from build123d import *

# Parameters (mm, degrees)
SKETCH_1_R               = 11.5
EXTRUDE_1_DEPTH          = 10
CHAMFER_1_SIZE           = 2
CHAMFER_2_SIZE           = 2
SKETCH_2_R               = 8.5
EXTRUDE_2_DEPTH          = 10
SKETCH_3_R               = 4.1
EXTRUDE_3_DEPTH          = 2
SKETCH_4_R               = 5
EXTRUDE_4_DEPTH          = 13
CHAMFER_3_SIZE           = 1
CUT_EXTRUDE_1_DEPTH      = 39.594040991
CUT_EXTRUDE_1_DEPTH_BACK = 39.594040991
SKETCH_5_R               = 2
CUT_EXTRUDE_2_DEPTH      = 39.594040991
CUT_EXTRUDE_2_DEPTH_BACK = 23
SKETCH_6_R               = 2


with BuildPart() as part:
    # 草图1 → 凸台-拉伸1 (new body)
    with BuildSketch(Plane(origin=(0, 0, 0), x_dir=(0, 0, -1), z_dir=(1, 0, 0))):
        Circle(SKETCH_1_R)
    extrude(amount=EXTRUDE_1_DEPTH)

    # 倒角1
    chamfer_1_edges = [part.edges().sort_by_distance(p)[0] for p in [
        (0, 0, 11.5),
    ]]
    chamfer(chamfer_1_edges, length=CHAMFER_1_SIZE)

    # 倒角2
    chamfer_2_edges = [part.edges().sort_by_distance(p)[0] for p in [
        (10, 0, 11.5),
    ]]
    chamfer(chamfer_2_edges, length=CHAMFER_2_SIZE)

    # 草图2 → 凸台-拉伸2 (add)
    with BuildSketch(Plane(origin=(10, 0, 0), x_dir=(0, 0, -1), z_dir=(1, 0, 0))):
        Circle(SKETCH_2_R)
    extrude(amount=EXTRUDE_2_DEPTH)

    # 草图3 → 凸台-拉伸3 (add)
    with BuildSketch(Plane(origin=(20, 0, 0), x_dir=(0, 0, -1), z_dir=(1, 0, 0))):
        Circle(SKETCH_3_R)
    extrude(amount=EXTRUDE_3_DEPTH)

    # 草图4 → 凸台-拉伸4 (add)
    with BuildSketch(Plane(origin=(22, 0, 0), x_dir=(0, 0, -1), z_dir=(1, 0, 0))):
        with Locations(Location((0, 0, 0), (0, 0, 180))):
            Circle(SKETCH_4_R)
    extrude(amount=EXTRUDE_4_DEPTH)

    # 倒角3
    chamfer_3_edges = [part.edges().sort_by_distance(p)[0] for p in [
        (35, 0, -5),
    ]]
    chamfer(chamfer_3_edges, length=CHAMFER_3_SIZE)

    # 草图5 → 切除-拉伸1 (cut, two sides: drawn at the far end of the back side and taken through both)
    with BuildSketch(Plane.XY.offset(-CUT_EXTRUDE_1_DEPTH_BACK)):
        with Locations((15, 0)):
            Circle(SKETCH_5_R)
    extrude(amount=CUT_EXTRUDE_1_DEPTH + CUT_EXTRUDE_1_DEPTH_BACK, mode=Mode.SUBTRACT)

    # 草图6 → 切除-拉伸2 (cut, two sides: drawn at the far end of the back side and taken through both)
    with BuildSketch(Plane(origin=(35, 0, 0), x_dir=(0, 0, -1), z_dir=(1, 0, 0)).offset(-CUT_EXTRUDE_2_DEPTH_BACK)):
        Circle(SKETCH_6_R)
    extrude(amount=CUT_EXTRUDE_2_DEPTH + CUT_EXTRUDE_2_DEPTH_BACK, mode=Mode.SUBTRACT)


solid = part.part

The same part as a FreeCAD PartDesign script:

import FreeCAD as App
import Part
import Sketcher

V = App.Vector
Q = App.Units.Quantity


def edges_at(feature, points):
    """Names of the edges that pass closest to the given points."""
    edges = feature.Shape.Edges
    near = lambda p: min(range(len(edges)), key=lambda i: edges[i].distToShape(Part.Vertex(*p))[0])
    return sorted({f"Edge{near(p) + 1}" for p in points})

doc = App.newDocument("Part")
body = doc.addObject("PartDesign::Body", "Body")

sketch1 = body.newObject("Sketcher::SketchObject", "Sketch")
sketch1.AttachmentSupport = (doc.getObject("YZ_Plane"), [""])
sketch1.MapMode = "FlatFace"
sketch1.addGeometry(Part.Circle(V(0, 0, 0), V(0, 0, 1), 12), False)
sketch1.addConstraint(Sketcher.Constraint("Coincident", 0, 3, -1, 1))
sketch1.addConstraint(Sketcher.Constraint("Diameter", 0, Q("23 mm")))
pad1 = body.newObject("PartDesign::Pad", "Pad")
pad1.Profile = sketch1
pad1.Length = 10
doc.recompute()

chamfer = body.newObject("PartDesign::Chamfer", "Chamfer")
chamfer.Base = (pad1, edges_at(pad1, [(0, 0, 11.5)]))
chamfer.Size = 2
doc.recompute()

chamfer2 = body.newObject("PartDesign::Chamfer", "Chamfer001")
chamfer2.Base = (chamfer, edges_at(chamfer, [(10, 0, 11.5)]))
chamfer2.Size = 2

sketch2 = body.newObject("Sketcher::SketchObject", "Sketch001")
sketch2.AttachmentSupport = (doc.getObject("YZ_Plane"), [""])
sketch2.MapMode = "FlatFace"
sketch2.AttachmentOffset = App.Placement(V(0, 0, 10), App.Rotation())
sketch2.addGeometry(Part.Circle(V(0, 0, 0), V(0, 0, 1), 8), False)
sketch2.addConstraint(Sketcher.Constraint("Coincident", 0, 3, -1, 1))
sketch2.addConstraint(Sketcher.Constraint("Diameter", 0, Q("17 mm")))
pad2 = body.newObject("PartDesign::Pad", "Pad001")
pad2.Profile = sketch2
pad2.Length = 10

sketch3 = body.newObject("Sketcher::SketchObject", "Sketch002")
sketch3.AttachmentSupport = (doc.getObject("YZ_Plane"), [""])
sketch3.MapMode = "FlatFace"
sketch3.AttachmentOffset = App.Placement(V(0, 0, 20), App.Rotation())
sketch3.addGeometry(Part.Circle(V(0, 0, 0), V(0, 0, 1), 4.1), False)
sketch3.addConstraint(Sketcher.Constraint("Coincident", 0, 3, -1, 1))
sketch3.addConstraint(Sketcher.Constraint("Diameter", 0, Q("8.2 mm")))
pad3 = body.newObject("PartDesign::Pad", "Pad002")
pad3.Profile = sketch3
pad3.Length = 2

sketch4 = body.newObject("Sketcher::SketchObject", "Sketch003")
sketch4.AttachmentSupport = (doc.getObject("YZ_Plane"), [""])
sketch4.MapMode = "FlatFace"
sketch4.AttachmentOffset = App.Placement(V(0, 0, 22), App.Rotation())
sketch4.addGeometry(Part.Circle(V(0, 0, 0), V(0, 0, 1), 5), False)
sketch4.addConstraint(Sketcher.Constraint("Coincident", 0, 3, -1, 1))
sketch4.addConstraint(Sketcher.Constraint("Diameter", 0, Q("10 mm")))
pad4 = body.newObject("PartDesign::Pad", "Pad003")
pad4.Profile = sketch4
pad4.Length = 13
doc.recompute()

chamfer3 = body.newObject("PartDesign::Chamfer", "Chamfer002")
chamfer3.Base = (pad4, edges_at(pad4, [(35, 0, -5)]))
chamfer3.Size = 1

sketch5 = body.newObject("Sketcher::SketchObject", "Sketch004")
sketch5.AttachmentSupport = (doc.getObject("XY_Plane"), [""])
sketch5.MapMode = "FlatFace"
sketch5.addGeometry(Part.Circle(V(15, 0, 0), V(0, 0, 1), 2), False)
sketch5.addConstraint(Sketcher.Constraint("PointOnObject", 0, 3, -1))
sketch5.addConstraint(Sketcher.Constraint("Diameter", 0, Q("4 mm")))
sketch5.addConstraint(Sketcher.Constraint("DistanceX", -1, 1, 0, 3, Q("15 mm")))
pocket1 = body.newObject("PartDesign::Pocket", "Pocket")
pocket1.Profile = sketch5
pocket1.Type = "ThroughAll"
pocket1.Midplane = True

sketch6 = body.newObject("Sketcher::SketchObject", "Sketch005")
sketch6.AttachmentSupport = (doc.getObject("YZ_Plane"), [""])
sketch6.MapMode = "FlatFace"
sketch6.AttachmentOffset = App.Placement(V(0, 0, 35), App.Rotation())
sketch6.addGeometry(Part.Circle(V(0, 0, 0), V(0, 0, 1), 2), False)
sketch6.addConstraint(Sketcher.Constraint("Coincident", 0, 3, -1, 1))
sketch6.addConstraint(Sketcher.Constraint("Diameter", 0, Q("4 mm")))
pocket2 = body.newObject("PartDesign::Pocket", "Pocket001")
pocket2.Profile = sketch6
pocket2.Type = "TwoLengths"
pocket2.Length = 39.594041
pocket2.Length2 = 23
pocket2.Reversed = True

doc.recompute()
